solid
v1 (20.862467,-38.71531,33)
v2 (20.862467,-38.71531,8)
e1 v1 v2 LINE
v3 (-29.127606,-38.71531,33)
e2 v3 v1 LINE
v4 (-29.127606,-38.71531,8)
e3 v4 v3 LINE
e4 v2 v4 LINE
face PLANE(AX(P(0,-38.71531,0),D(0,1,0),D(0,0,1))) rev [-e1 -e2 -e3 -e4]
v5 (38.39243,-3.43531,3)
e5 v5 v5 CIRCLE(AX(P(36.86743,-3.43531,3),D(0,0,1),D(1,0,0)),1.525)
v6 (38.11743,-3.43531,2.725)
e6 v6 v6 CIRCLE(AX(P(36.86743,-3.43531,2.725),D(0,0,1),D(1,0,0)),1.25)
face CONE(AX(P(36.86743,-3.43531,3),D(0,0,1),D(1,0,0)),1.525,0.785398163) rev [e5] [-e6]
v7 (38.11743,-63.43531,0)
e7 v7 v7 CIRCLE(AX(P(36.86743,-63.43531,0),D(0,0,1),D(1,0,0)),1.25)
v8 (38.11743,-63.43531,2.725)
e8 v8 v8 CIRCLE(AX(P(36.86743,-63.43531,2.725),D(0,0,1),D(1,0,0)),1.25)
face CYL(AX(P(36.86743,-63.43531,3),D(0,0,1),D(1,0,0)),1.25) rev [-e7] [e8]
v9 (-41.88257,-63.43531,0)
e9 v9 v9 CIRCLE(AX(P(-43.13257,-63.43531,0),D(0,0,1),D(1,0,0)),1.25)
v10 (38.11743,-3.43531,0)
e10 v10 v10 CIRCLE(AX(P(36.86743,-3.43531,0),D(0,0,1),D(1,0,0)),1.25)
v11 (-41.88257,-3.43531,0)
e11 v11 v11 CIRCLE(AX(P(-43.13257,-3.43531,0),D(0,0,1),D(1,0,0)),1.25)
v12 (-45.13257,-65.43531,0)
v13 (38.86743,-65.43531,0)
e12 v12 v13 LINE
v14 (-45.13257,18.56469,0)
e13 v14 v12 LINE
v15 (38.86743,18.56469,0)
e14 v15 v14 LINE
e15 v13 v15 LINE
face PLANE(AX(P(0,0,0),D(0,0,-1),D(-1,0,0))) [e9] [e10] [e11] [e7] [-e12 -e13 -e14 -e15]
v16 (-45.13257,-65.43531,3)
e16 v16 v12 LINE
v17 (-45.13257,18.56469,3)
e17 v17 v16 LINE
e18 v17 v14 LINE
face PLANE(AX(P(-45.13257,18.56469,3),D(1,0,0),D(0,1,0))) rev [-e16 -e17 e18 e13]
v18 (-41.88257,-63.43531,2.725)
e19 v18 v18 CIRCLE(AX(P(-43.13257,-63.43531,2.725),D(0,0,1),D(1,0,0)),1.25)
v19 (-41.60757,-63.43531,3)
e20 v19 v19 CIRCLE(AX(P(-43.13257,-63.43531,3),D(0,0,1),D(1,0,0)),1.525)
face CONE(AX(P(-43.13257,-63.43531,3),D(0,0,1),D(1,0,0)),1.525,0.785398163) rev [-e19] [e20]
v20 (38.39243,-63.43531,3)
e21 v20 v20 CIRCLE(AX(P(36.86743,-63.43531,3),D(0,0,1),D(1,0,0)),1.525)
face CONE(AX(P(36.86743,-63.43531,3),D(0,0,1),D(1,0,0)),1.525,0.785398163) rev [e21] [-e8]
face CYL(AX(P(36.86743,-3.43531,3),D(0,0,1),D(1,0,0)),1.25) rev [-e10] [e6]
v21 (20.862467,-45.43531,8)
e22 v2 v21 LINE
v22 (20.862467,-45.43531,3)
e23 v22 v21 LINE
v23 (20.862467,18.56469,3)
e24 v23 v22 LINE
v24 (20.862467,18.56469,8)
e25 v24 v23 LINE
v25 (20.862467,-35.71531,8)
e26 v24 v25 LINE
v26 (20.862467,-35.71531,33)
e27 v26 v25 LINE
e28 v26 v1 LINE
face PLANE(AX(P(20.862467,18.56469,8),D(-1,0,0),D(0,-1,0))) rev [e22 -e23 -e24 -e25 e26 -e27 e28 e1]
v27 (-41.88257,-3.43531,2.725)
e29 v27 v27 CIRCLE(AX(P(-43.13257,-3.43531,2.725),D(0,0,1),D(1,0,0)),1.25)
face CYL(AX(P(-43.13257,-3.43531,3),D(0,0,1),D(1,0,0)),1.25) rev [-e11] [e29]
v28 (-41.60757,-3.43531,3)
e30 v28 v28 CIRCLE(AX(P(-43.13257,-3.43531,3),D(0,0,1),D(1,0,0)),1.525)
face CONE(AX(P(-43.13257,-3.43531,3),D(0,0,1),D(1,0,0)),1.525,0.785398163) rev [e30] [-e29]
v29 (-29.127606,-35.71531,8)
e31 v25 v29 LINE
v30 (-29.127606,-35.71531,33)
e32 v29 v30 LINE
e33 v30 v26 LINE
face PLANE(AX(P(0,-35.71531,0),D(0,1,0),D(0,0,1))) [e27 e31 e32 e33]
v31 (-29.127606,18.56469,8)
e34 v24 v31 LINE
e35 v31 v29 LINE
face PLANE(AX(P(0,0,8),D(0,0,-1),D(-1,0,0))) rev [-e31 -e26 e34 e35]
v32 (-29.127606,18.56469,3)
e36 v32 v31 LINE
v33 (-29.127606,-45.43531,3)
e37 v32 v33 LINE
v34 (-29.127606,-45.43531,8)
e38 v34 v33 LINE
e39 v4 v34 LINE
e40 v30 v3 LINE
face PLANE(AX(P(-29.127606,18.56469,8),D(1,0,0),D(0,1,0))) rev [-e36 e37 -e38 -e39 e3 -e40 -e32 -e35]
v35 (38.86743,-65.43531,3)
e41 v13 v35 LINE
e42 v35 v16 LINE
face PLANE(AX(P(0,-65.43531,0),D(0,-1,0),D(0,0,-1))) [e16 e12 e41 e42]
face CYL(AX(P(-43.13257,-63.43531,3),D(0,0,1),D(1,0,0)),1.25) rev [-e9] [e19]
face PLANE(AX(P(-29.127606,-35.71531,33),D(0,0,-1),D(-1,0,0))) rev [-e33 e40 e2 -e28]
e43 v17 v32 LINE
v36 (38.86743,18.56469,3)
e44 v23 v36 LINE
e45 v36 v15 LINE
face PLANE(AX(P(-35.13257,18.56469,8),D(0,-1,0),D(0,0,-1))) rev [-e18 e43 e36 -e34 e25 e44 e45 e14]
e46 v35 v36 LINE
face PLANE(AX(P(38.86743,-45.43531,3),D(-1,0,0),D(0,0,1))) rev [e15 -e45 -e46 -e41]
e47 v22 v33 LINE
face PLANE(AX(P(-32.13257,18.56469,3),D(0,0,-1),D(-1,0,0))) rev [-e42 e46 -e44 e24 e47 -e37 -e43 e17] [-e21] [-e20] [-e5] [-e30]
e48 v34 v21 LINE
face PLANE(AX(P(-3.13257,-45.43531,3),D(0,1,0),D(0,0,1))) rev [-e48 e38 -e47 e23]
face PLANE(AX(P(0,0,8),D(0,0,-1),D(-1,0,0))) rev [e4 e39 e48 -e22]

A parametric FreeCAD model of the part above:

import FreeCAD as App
import Part
import Sketcher

V = App.Vector
Q = App.Units.Quantity


def add_polygon(sketch, points):
    """Adds a closed chain of lines whose ends are joined by coincident constraints."""
    first, n = sketch.GeometryCount, len(points)
    for a, b in zip(points, points[1:] + points[:1]):
        sketch.addGeometry(Part.LineSegment(App.Vector(*a, 0), App.Vector(*b, 0)), False)
    for i in range(n):
        sketch.addConstraint(Sketcher.Constraint("Coincident", first + i, 2, first + (i + 1) % n, 1))

doc = App.newDocument("Part")
body = doc.addObject("PartDesign::Body", "Body")

sketch1 = doc.addObject("Sketcher::SketchObject", "Sketch")
body.addObject(sketch1)
sketch1.AttachmentSupport = (doc.XY_Plane, [""])
sketch1.MapMode = "FlatFace"
add_polygon(sketch1, [(-35, 19), (-35, -26), (27, -26), (27, 19)])
sketch1.addConstraint(Sketcher.Constraint("Vertical", 0))
sketch1.addConstraint(Sketcher.Constraint("Horizontal", 1))
sketch1.addConstraint(Sketcher.Constraint("Vertical", 2))
sketch1.addConstraint(Sketcher.Constraint("Horizontal", 3))
sketch1.addConstraint(Sketcher.Constraint("DistanceX", 1, 1, 1, 2, Q("62 mm")))
sketch1.addConstraint(Sketcher.Constraint("DistanceY", 0, 2, 0, 1, Q("45 mm")))
sketch1.addConstraint(Sketcher.Constraint("DistanceX", 0, 2, -1, 1, Q("35.13257 mm")))
sketch1.addConstraint(Sketcher.Constraint("DistanceY", 0, 2, -1, 1, Q("26.43531 mm")))
pad1 = doc.addObject("PartDesign::Pad", "Pad")
body.addObject(pad1)
pad1.Profile = sketch1
pad1.Length = 8

sketch2 = doc.addObject("Sketcher::SketchObject", "Sketch001")
body.addObject(sketch2)
sketch2.AttachmentSupport = (doc.XZ_Plane, [""])
sketch2.MapMode = "FlatFace"
sketch2.AttachmentOffset = App.Placement(V(0, 0, 26.43531), App.Rotation())
add_polygon(sketch2, [(-32.1, 8), (-32.1, 3), (-29.1, 3), (-29.1, 8)])
add_polygon(sketch2, [(20.9, 8), (20.9, 3), (23.9, 3), (23.9, 8)])
sketch2.addConstraint(Sketcher.Constraint("Vertical", 0))
sketch2.addConstraint(Sketcher.Constraint("Horizontal", 1))
sketch2.addConstraint(Sketcher.Constraint("Vertical", 2))
sketch2.addConstraint(Sketcher.Constraint("Horizontal", 3))
sketch2.addConstraint(Sketcher.Constraint("Vertical", 4))
sketch2.addConstraint(Sketcher.Constraint("Horizontal", 5))
sketch2.addConstraint(Sketcher.Constraint("Vertical", 6))
sketch2.addConstraint(Sketcher.Constraint("Horizontal", 7))
sketch2.addConstraint(Sketcher.Constraint("Horizontal", 1, 2, 4, 2))
sketch2.addConstraint(Sketcher.Constraint("Horizontal", 3, 2, 6, 2))
sketch2.addConstraint(Sketcher.Constraint("Equal", 3, 5))
sketch2.addConstraint(Sketcher.Constraint("DistanceY", 0, 2, 0, 1, Q("5 mm")))
sketch2.addConstraint(Sketcher.Constraint("DistanceY", -1, 1, 0, 2, Q("3 mm")))
sketch2.addConstraint(Sketcher.Constraint("DistanceX", 0, 2, 5, 2, Q("56 mm")))
sketch2.addConstraint(Sketcher.Constraint("DistanceX", 1, 1, 1, 2, Q("3.004964 mm")))
sketch2.addConstraint(Sketcher.Constraint("DistanceX", 0, 2, -1, 1, Q("32.13257 mm")))
pocket1 = doc.addObject("PartDesign::Pocket", "Pocket")
body.addObject(pocket1)
pocket1.Profile = sketch2
pocket1.Type = "ThroughAll"

sketch3 = doc.addObject("Sketcher::SketchObject", "Sketch002")
body.addObject(sketch3)
sketch3.AttachmentSupport = (doc.XY_Plane, [""])
sketch3.MapMode = "FlatFace"
add_polygon(sketch3, [(39, 19), (39, -45), (-45, -45), (-45, 19)])
sketch3.addConstraint(Sketcher.Constraint("Vertical", 0))
sketch3.addConstraint(Sketcher.Constraint("Horizontal", 1))
sketch3.addConstraint(Sketcher.Constraint("Vertical", 2))
sketch3.addConstraint(Sketcher.Constraint("Horizontal", 3))
sketch3.addConstraint(Sketcher.Constraint("DistanceX", 1, 2, 1, 1, Q("84 mm")))
sketch3.addConstraint(Sketcher.Constraint("DistanceY", 0, 2, 0, 1, Q("64 mm")))
sketch3.addConstraint(Sketcher.Constraint("DistanceX", -1, 1, 0, 2, Q("38.86743 mm")))
sketch3.addConstraint(Sketcher.Constraint("DistanceY", 0, 2, -1, 1, Q("45.43531 mm")))
pad2 = doc.addObject("PartDesign::Pad", "Pad001")
body.addObject(pad2)
pad2.Profile = sketch3
pad2.Length = 3

sketch4 = doc.addObject("Sketcher::SketchObject", "Sketch003")
body.addObject(sketch4)
sketch4.AttachmentSupport = (doc.XZ_Plane, [""])
sketch4.MapMode = "FlatFace"
sketch4.AttachmentOffset = App.Placement(V(0, 0, 26.43531), App.Rotation())
add_polygon(sketch4, [(-35.1, 8), (-35.1, 3), (-32.1, 3), (-32.1, 8)])
sketch4.addConstraint(Sketcher.Constraint("Vertical", 0))
sketch4.addConstraint(Sketcher.Constraint("Horizontal", 1))
sketch4.addConstraint(Sketcher.Constraint("Vertical", 2))
sketch4.addConstraint(Sketcher.Constraint("Horizontal", 3))
sketch4.addConstraint(Sketcher.Constraint("DistanceX", 1, 1, 1, 2, Q("3 mm")))
sketch4.addConstraint(Sketcher.Constraint("DistanceY", 0, 2, 0, 1, Q("5 mm")))
sketch4.addConstraint(Sketcher.Constraint("DistanceY", -1, 1, 0, 2, Q("3 mm")))
sketch4.addConstraint(Sketcher.Constraint("DistanceX", 0, 2, -1, 1, Q("35.13257 mm")))
pad3 = doc.addObject("PartDesign::Pad", "Pad002")
body.addObject(pad3)
pad3.Profile = sketch4
pad3.Length = 2

sketch5 = doc.addObject("Sketcher::SketchObject", "Sketch004")
body.addObject(sketch5)
sketch5.AttachmentSupport = (doc.XZ_Plane, [""])
sketch5.MapMode = "FlatFace"
sketch5.AttachmentOffset = App.Placement(V(0, 0, 26.43531), App.Rotation())
add_polygon(sketch5, [(23.9, 8), (23.9, 3), (26.9, 3), (26.9, 8)])
sketch5.addConstraint(Sketcher.Constraint("Vertical", 0))
sketch5.addConstraint(Sketcher.Constraint("Horizontal", 1))
sketch5.addConstraint(Sketcher.Constraint("Vertical", 2))
sketch5.addConstraint(Sketcher.Constraint("Horizontal", 3))
sketch5.addConstraint(Sketcher.Constraint("DistanceX", 1, 1, 1, 2, Q("3 mm")))
sketch5.addConstraint(Sketcher.Constraint("DistanceY", 0, 2, 0, 1, Q("5 mm")))
sketch5.addConstraint(Sketcher.Constraint("DistanceY", -1, 1, 0, 2, Q("3 mm")))
sketch5.addConstraint(Sketcher.Constraint("DistanceX", -1, 1, 0, 2, Q("23.86743 mm")))
pad4 = doc.addObject("PartDesign::Pad", "Pad003")
body.addObject(pad4)
pad4.Profile = sketch5
pad4.Length = 2

sketch6 = doc.addObject("Sketcher::SketchObject", "Sketch005")
body.addObject(sketch6)
sketch6.AttachmentSupport = (doc.XZ_Plane, [""])
sketch6.MapMode = "FlatFace"
sketch6.AttachmentOffset = App.Placement(V(0, 0, 26.43531), App.Rotation())
add_polygon(sketch6, [(-29, 8), (-29, 3), (21, 3), (21, 8)])
sketch6.addConstraint(Sketcher.Constraint("Vertical", 0))
sketch6.addConstraint(Sketcher.Constraint("Horizontal", 1))
sketch6.addConstraint(Sketcher.Constraint("Vertical", 2))
sketch6.addConstraint(Sketcher.Constraint("Horizontal", 3))
sketch6.addConstraint(Sketcher.Constraint("DistanceY", 0, 2, 0, 1, Q("5 mm")))
sketch6.addConstraint(Sketcher.Constraint("DistanceY", -1, 1, 0, 2, Q("3 mm")))
sketch6.addConstraint(Sketcher.Constraint("DistanceX", 1, 1, 1, 2, Q("49.990073 mm")))
sketch6.addConstraint(Sketcher.Constraint("DistanceX", 0, 2, -1, 1, Q("29.127606 mm")))
pad5 = doc.addObject("PartDesign::Pad", "Pad004")
body.addObject(pad5)
pad5.Profile = sketch6
pad5.Length = 2

sketch7 = doc.addObject("Sketcher::SketchObject", "Sketch006")
body.addObject(sketch7)
sketch7.AttachmentSupport = (doc.XZ_Plane, [""])
sketch7.MapMode = "FlatFace"
sketch7.AttachmentOffset = App.Placement(V(0, 0, 28.43531), App.Rotation())
add_polygon(sketch7, [(-35.1, 8), (-35.1, 3), (-32.1, 3), (-32.1, 8)])
sketch7.addConstraint(Sketcher.Constraint("Vertical", 0))
sketch7.addConstraint(Sketcher.Constraint("Horizontal", 1))
sketch7.addConstraint(Sketcher.Constraint("Vertical", 2))
sketch7.addConstraint(Sketcher.Constraint("Horizontal", 3))
sketch7.addConstraint(Sketcher.Constraint("DistanceX", 1, 1, 1, 2, Q("3 mm")))
sketch7.addConstraint(Sketcher.Constraint("DistanceY", 0, 2, 0, 1, Q("5 mm")))
sketch7.addConstraint(Sketcher.Constraint("DistanceY", -1, 1, 0, 2, Q("3 mm")))
sketch7.addConstraint(Sketcher.Constraint("DistanceX", 0, 2, -1, 1, Q("35.13257 mm")))
pocket2 = doc.addObject("PartDesign::Pocket", "Pocket001")
body.addObject(pocket2)
pocket2.Profile = sketch7
pocket2.Type = "ThroughAll"

sketch8 = doc.addObject("Sketcher::SketchObject", "Sketch007")
body.addObject(sketch8)
sketch8.AttachmentSupport = (doc.XZ_Plane, [""])
sketch8.MapMode = "FlatFace"
sketch8.AttachmentOffset = App.Placement(V(0, 0, 28.43531), App.Rotation())
add_polygon(sketch8, [(23.9, 8), (23.9, 3), (26.9, 3), (26.9, 8)])
sketch8.addConstraint(Sketcher.Constraint("Vertical", 0))
sketch8.addConstraint(Sketcher.Constraint("Horizontal", 1))
sketch8.addConstraint(Sketcher.Constraint("Vertical", 2))
sketch8.addConstraint(Sketcher.Constraint("Horizontal", 3))
sketch8.addConstraint(Sketcher.Constraint("DistanceX", 1, 1, 1, 2, Q("3 mm")))
sketch8.addConstraint(Sketcher.Constraint("DistanceY", 0, 2, 0, 1, Q("5 mm")))
sketch8.addConstraint(Sketcher.Constraint("DistanceY", -1, 1, 0, 2, Q("3 mm")))
sketch8.addConstraint(Sketcher.Constraint("DistanceX", -1, 1, 0, 2, Q("23.86743 mm")))
pocket3 = doc.addObject("PartDesign::Pocket", "Pocket002")
body.addObject(pocket3)
pocket3.Profile = sketch8
pocket3.Type = "ThroughAll"

sketch9 = doc.addObject("Sketcher::SketchObject", "Sketch008")
body.addObject(sketch9)
sketch9.AttachmentSupport = (doc.XZ_Plane, [""])
sketch9.MapMode = "FlatFace"
sketch9.AttachmentOffset = App.Placement(V(0, 0, 28.43531), App.Rotation())
add_polygon(sketch9, [(-29, 8), (-29, 3), (21, 3), (21, 8)])
sketch9.addConstraint(Sketcher.Constraint("Vertical", 0))
sketch9.addConstraint(Sketcher.Constraint("Horizontal", 1))
sketch9.addConstraint(Sketcher.Constraint("Vertical", 2))
sketch9.addConstraint(Sketcher.Constraint("Horizontal", 3))
sketch9.addConstraint(Sketcher.Constraint("DistanceY", 0, 2, 0, 1, Q("5 mm")))
sketch9.addConstraint(Sketcher.Constraint("DistanceY", -1, 1, 0, 2, Q("3 mm")))
sketch9.addConstraint(Sketcher.Constraint("DistanceX", 1, 1, 1, 2, Q("49.990073 mm")))
sketch9.addConstraint(Sketcher.Constraint("DistanceX", 0, 2, -1, 1, Q("29.127606 mm")))
pad6 = doc.addObject("PartDesign::Pad", "Pad005")
body.addObject(pad6)
pad6.Profile = sketch9
pad6.Length = 17

sketch10 = doc.addObject("Sketcher::SketchObject", "Sketch009")
body.addObject(sketch10)
sketch10.AttachmentSupport = (doc.XY_Plane, [""])
sketch10.MapMode = "FlatFace"
sketch10.AttachmentOffset = App.Placement(V(0, 0, 8), App.Rotation())
add_polygon(sketch10, [(-29.1, -42.4), (-29.1, -45.4), (20.9, -45.4), (20.9, -42.4)])
sketch10.addConstraint(Sketcher.Constraint("Vertical", 0))
sketch10.addConstraint(Sketcher.Constraint("Horizontal", 1))
sketch10.addConstraint(Sketcher.Constraint("Vertical", 2))
sketch10.addConstraint(Sketcher.Constraint("Horizontal", 3))
sketch10.addConstraint(Sketcher.Constraint("DistanceY", 0, 2, 0, 1, Q("3 mm")))
sketch10.addConstraint(Sketcher.Constraint("DistanceX", 1, 1, 1, 2, Q("49.990073 mm")))
sketch10.addConstraint(Sketcher.Constraint("DistanceY", 0, 2, -1, 1, Q("45.43531 mm")))
sketch10.addConstraint(Sketcher.Constraint("DistanceX", 0, 2, -1, 1, Q("29.127606 mm")))
pad7 = doc.addObject("PartDesign::Pad", "Pad006")
body.addObject(pad7)
pad7.Profile = sketch10
pad7.Length = 25

sketch11 = doc.addObject("Sketcher::SketchObject", "Sketch010")
body.addObject(sketch11)
sketch11.AttachmentSupport = (doc.XZ_Plane, [""])
sketch11.MapMode = "FlatFace"
sketch11.AttachmentOffset = App.Placement(V(0, 0, 38.71531), App.Rotation())
add_polygon(sketch11, [(-29, 8), (-29, 33), (21, 33), (21, 8)])
sketch11.addConstraint(Sketcher.Constraint("Vertical", 0))
sketch11.addConstraint(Sketcher.Constraint("Horizontal", 1))
sketch11.addConstraint(Sketcher.Constraint("Vertical", 2))
sketch11.addConstraint(Sketcher.Constraint("Horizontal", 3))
sketch11.addConstraint(Sketcher.Constraint("DistanceY", 0, 1, 0, 2, Q("25 mm")))
sketch11.addConstraint(Sketcher.Constraint("DistanceY", -1, 1, 0, 2, Q("33 mm")))
sketch11.addConstraint(Sketcher.Constraint("DistanceX", 1, 1, 1, 2, Q("49.990073 mm")))
sketch11.addConstraint(Sketcher.Constraint("DistanceX", 0, 2, -1, 1, Q("29.127606 mm")))
pad8 = doc.addObject("PartDesign::Pad", "Pad007")
body.addObject(pad8)
pad8.Profile = sketch11
pad8.Length = 3
pad8.Reversed = True

sketch12 = doc.addObject("Sketcher::SketchObject", "Sketch011")
body.addObject(sketch12)
sketch12.AttachmentSupport = (doc.XZ_Plane, [""])
sketch12.MapMode = "FlatFace"
sketch12.AttachmentOffset = App.Placement(V(0, 0, 38.71531), App.Rotation())
add_polygon(sketch12, [(-29, 33), (-29, 8), (21, 8), (21, 33)])
sketch12.addConstraint(Sketcher.Constraint("Vertical", 0))
sketch12.addConstraint(Sketcher.Constraint("Horizontal", 1))
sketch12.addConstraint(Sketcher.Constraint("Vertical", 2))
sketch12.addConstraint(Sketcher.Constraint("Horizontal", 3))
sketch12.addConstraint(Sketcher.Constraint("DistanceY", 0, 2, 0, 1, Q("25 mm")))
sketch12.addConstraint(Sketcher.Constraint("DistanceY", -1, 1, 0, 2, Q("8 mm")))
sketch12.addConstraint(Sketcher.Constraint("DistanceX", 1, 1, 1, 2, Q("49.990073 mm")))
sketch12.addConstraint(Sketcher.Constraint("DistanceX", 0, 2, -1, 1, Q("29.127606 mm")))
pocket4 = doc.addObject("PartDesign::Pocket", "Pocket003")
body.addObject(pocket4)
pocket4.Profile = sketch12
pocket4.Type = "ThroughAll"
pocket4.Reversed = True

sketch13 = doc.addObject("Sketcher::SketchObject", "Sketch012")
body.addObject(sketch13)
sketch13.AttachmentSupport = (doc.XZ_Plane, [""])
sketch13.MapMode = "FlatFace"
sketch13.AttachmentOffset = App.Placement(V(0, 0, 45.43531), App.Rotation())
add_polygon(sketch13, [(-45.1, 3), (-45.1, 0), (38.9, 0), (38.9, 3)])
sketch13.addConstraint(Sketcher.Constraint("Vertical", 0))
sketch13.addConstraint(Sketcher.Constraint("Horizontal", 1))
sketch13.addConstraint(Sketcher.Constraint("Vertical", 2))
sketch13.addConstraint(Sketcher.Constraint("Horizontal", 3))
sketch13.addConstraint(Sketcher.Constraint("PointOnObject", 0, 2, -1))
sketch13.addConstraint(Sketcher.Constraint("DistanceX", 1, 1, 1, 2, Q("84 mm")))
sketch13.addConstraint(Sketcher.Constraint("DistanceY", 0, 2, 0, 1, Q("3 mm")))
sketch13.addConstraint(Sketcher.Constraint("DistanceX", 0, 2, -1, 1, Q("45.13257 mm")))
pad9 = doc.addObject("PartDesign::Pad", "Pad008")
body.addObject(pad9)
pad9.Profile = sketch13
pad9.Length = 20

sketch14 = doc.addObject("Sketcher::SketchObject", "Sketch013")
body.addObject(sketch14)
sketch14.AttachmentSupport = (doc.XY_Plane, [""])
sketch14.MapMode = "FlatFace"
sketch14.AttachmentOffset = App.Placement(V(0, 0, 3), App.Rotation())
sketch14.addGeometry(Part.Circle(V(-43.1, -3.4, 0), V(0, 0, 1), 1.2), False)
sketch14.addGeometry(Part.Circle(V(36.9, -3.4, 0), V(0, 0, 1), 1.2), False)
sketch14.addGeometry(Part.Circle(V(36.9, -63.4, 0), V(0, 0, 1), 1.2), False)
sketch14.addGeometry(Part.Circle(V(-43.1, -63.4, 0), V(0, 0, 1), 1.2), False)
sketch14.addConstraint(Sketcher.Constraint("Equal", 0, 1))
sketch14.addConstraint(Sketcher.Constraint("Equal", 1, 2))
sketch14.addConstraint(Sketcher.Constraint("Equal", 2, 3))
sketch14.addConstraint(Sketcher.Constraint("Horizontal", 0, 3, 1, 3))
sketch14.addConstraint(Sketcher.Constraint("Horizontal", 2, 3, 3, 3))
sketch14.addConstraint(Sketcher.Constraint("Vertical", 1, 3, 2, 3))
sketch14.addConstraint(Sketcher.Constraint("Vertical", 0, 3, 3, 3))
sketch14.addConstraint(Sketcher.Constraint("Diameter", 0, Q("2.5 mm")))
sketch14.addConstraint(Sketcher.Constraint("DistanceX", 0, 3, 1, 3, Q("80 mm")))
sketch14.addConstraint(Sketcher.Constraint("DistanceY", 2, 3, 1, 3, Q("60 mm")))
sketch14.addConstraint(Sketcher.Constraint("DistanceX", 0, 3, -1, 1, Q("43.13257 mm")))
sketch14.addConstraint(Sketcher.Constraint("DistanceY", 0, 3, -1, 1, Q("3.43531 mm")))
doc.recompute()
hole = doc.addObject("PartDesign::Hole", "Hole")
body.addObject(hole)
hole.Profile = sketch14
hole.ThreadType = "None"
hole.Diameter = 2.5
hole.DepthType = "ThroughAll"
hole.HoleCutType = "Countersink"
hole.HoleCutDiameter = 3.05
hole.HoleCutCountersinkAngle = 90

doc.recompute()
